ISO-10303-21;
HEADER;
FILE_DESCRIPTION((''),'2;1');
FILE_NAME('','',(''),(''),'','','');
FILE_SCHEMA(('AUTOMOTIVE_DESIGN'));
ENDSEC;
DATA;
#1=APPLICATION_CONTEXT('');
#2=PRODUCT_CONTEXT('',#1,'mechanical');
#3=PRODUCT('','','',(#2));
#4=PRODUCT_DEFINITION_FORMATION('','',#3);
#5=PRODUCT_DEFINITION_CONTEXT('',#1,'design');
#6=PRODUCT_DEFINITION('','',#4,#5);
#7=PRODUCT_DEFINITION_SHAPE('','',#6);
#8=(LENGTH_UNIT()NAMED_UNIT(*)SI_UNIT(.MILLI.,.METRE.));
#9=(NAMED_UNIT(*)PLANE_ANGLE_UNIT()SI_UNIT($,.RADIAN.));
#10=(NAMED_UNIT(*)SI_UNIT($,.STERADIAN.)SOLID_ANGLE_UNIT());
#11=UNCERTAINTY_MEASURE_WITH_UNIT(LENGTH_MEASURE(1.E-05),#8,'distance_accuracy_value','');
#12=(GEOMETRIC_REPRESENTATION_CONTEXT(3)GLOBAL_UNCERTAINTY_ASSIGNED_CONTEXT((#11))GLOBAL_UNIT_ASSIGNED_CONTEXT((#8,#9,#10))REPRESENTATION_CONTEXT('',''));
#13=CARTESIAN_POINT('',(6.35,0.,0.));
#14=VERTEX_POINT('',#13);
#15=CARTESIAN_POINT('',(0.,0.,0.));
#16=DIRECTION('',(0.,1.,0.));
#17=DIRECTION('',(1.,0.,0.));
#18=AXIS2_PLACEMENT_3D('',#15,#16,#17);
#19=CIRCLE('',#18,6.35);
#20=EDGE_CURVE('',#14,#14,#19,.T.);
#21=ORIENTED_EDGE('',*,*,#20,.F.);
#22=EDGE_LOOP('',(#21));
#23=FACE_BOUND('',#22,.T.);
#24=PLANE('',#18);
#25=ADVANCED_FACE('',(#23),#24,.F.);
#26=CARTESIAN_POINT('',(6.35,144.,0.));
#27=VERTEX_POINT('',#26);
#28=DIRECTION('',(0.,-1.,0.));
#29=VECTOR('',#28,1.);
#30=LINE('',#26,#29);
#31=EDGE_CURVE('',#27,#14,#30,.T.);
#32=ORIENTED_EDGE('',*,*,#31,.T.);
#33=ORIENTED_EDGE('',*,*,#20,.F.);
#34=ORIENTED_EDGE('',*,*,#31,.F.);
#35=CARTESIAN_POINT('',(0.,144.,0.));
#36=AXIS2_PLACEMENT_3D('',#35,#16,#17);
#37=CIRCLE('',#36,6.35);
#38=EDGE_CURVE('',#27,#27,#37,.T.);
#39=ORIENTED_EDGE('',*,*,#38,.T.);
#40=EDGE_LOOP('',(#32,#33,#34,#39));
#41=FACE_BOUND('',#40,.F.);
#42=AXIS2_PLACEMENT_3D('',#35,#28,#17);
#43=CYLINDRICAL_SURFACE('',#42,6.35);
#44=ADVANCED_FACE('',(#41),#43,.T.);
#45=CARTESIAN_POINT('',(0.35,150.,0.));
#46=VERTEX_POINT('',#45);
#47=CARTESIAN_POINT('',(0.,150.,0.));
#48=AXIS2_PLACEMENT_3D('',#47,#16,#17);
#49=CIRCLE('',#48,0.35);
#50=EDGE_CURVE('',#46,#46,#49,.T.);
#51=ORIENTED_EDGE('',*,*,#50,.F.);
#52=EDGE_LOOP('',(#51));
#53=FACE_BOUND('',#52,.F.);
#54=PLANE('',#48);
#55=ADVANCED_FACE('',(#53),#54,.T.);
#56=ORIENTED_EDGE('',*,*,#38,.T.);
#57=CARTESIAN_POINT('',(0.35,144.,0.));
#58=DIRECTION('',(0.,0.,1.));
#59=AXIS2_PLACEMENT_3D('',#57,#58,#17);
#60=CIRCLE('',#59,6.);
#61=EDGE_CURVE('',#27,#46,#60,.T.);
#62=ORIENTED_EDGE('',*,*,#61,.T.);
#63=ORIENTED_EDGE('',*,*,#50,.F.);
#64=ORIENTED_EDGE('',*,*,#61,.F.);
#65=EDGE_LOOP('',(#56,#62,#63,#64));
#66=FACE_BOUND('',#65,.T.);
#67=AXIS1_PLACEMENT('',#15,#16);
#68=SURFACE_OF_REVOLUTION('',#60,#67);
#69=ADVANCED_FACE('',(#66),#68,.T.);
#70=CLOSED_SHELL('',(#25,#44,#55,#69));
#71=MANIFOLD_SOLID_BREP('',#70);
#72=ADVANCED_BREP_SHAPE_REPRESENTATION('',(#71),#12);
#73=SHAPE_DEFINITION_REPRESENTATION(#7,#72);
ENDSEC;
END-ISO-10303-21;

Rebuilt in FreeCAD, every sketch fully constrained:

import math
import FreeCAD as App
import Part
import Sketcher

V = App.Vector

doc = App.newDocument("Part")
params = doc.addObject("Spreadsheet::Sheet", "Params")
for row, (alias, value) in enumerate([
    ("sketch1_radius", "6 mm"),
    ("sketch1_height", "150 mm"),
    ("sketch1_width", "6.35 mm"),
    ("revolution_angle", "360 deg"),
], start=1):
    params.set(f"A{row}", alias)
    params.set(f"B{row}", "=" + value)
    params.setAlias(f"B{row}", alias)

body = doc.addObject("PartDesign::Body", "Body")

# Sketch on XY plane
sketch1 = body.newObject("Sketcher::SketchObject", "Sketch")
sketch1.AttachmentSupport = (doc.getObject("XY_Plane"), [""])
sketch1.MapMode = "FlatFace"
sketch1.addGeometry([
    Part.LineSegment(V(0, 150, 0), V(0, 0, 0)),  # 0
    Part.LineSegment(V(0, 0, 0), V(6.35, 0, 0)),  # 1
    Part.LineSegment(V(6.35, 0, 0), V(6.35, 144, 0)),  # 2
    Part.ArcOfCircle(Part.Circle(V(0.35, 144, 0), V(0, 0, 1), 6), math.radians(0), math.radians(90)),  # 3
    Part.LineSegment(V(0.35, 150, 0), V(0, 150, 0)),  # 4
], False)
sketch1.addConstraint([
    Sketcher.Constraint("Coincident", 0, 2, 1, 1),
    Sketcher.Constraint("Coincident", 1, 2, 2, 1),
    Sketcher.Constraint("Tangent", 2, 2, 3, 1),
    Sketcher.Constraint("Tangent", 3, 2, 4, 1),
    Sketcher.Constraint("Coincident", 4, 2, 0, 1),
    Sketcher.Constraint("Vertical", 0),
    Sketcher.Constraint("Horizontal", 1),
    Sketcher.Constraint("Vertical", 2),
    Sketcher.Constraint("Horizontal", 4),
    Sketcher.Constraint("Coincident", 0, 2, -1, 1),
    Sketcher.Constraint("Radius", 3, 6.0),
    Sketcher.Constraint("DistanceY", 0, 2, 0, 1, 150.0),
    Sketcher.Constraint("DistanceX", 1, 1, 1, 2, 6.35),
])
sketch1.setExpression("Constraints[10]", "Params.sketch1_radius")
sketch1.setExpression("Constraints[11]", "Params.sketch1_height")
sketch1.setExpression("Constraints[12]", "Params.sketch1_width")
revolution = body.newObject("PartDesign::Revolution", "Revolution")
revolution.Profile = sketch1
revolution.ReferenceAxis = (sketch1, ["V_Axis"])
revolution.setExpression("Angle", "Params.revolution_angle")

doc.recompute()
